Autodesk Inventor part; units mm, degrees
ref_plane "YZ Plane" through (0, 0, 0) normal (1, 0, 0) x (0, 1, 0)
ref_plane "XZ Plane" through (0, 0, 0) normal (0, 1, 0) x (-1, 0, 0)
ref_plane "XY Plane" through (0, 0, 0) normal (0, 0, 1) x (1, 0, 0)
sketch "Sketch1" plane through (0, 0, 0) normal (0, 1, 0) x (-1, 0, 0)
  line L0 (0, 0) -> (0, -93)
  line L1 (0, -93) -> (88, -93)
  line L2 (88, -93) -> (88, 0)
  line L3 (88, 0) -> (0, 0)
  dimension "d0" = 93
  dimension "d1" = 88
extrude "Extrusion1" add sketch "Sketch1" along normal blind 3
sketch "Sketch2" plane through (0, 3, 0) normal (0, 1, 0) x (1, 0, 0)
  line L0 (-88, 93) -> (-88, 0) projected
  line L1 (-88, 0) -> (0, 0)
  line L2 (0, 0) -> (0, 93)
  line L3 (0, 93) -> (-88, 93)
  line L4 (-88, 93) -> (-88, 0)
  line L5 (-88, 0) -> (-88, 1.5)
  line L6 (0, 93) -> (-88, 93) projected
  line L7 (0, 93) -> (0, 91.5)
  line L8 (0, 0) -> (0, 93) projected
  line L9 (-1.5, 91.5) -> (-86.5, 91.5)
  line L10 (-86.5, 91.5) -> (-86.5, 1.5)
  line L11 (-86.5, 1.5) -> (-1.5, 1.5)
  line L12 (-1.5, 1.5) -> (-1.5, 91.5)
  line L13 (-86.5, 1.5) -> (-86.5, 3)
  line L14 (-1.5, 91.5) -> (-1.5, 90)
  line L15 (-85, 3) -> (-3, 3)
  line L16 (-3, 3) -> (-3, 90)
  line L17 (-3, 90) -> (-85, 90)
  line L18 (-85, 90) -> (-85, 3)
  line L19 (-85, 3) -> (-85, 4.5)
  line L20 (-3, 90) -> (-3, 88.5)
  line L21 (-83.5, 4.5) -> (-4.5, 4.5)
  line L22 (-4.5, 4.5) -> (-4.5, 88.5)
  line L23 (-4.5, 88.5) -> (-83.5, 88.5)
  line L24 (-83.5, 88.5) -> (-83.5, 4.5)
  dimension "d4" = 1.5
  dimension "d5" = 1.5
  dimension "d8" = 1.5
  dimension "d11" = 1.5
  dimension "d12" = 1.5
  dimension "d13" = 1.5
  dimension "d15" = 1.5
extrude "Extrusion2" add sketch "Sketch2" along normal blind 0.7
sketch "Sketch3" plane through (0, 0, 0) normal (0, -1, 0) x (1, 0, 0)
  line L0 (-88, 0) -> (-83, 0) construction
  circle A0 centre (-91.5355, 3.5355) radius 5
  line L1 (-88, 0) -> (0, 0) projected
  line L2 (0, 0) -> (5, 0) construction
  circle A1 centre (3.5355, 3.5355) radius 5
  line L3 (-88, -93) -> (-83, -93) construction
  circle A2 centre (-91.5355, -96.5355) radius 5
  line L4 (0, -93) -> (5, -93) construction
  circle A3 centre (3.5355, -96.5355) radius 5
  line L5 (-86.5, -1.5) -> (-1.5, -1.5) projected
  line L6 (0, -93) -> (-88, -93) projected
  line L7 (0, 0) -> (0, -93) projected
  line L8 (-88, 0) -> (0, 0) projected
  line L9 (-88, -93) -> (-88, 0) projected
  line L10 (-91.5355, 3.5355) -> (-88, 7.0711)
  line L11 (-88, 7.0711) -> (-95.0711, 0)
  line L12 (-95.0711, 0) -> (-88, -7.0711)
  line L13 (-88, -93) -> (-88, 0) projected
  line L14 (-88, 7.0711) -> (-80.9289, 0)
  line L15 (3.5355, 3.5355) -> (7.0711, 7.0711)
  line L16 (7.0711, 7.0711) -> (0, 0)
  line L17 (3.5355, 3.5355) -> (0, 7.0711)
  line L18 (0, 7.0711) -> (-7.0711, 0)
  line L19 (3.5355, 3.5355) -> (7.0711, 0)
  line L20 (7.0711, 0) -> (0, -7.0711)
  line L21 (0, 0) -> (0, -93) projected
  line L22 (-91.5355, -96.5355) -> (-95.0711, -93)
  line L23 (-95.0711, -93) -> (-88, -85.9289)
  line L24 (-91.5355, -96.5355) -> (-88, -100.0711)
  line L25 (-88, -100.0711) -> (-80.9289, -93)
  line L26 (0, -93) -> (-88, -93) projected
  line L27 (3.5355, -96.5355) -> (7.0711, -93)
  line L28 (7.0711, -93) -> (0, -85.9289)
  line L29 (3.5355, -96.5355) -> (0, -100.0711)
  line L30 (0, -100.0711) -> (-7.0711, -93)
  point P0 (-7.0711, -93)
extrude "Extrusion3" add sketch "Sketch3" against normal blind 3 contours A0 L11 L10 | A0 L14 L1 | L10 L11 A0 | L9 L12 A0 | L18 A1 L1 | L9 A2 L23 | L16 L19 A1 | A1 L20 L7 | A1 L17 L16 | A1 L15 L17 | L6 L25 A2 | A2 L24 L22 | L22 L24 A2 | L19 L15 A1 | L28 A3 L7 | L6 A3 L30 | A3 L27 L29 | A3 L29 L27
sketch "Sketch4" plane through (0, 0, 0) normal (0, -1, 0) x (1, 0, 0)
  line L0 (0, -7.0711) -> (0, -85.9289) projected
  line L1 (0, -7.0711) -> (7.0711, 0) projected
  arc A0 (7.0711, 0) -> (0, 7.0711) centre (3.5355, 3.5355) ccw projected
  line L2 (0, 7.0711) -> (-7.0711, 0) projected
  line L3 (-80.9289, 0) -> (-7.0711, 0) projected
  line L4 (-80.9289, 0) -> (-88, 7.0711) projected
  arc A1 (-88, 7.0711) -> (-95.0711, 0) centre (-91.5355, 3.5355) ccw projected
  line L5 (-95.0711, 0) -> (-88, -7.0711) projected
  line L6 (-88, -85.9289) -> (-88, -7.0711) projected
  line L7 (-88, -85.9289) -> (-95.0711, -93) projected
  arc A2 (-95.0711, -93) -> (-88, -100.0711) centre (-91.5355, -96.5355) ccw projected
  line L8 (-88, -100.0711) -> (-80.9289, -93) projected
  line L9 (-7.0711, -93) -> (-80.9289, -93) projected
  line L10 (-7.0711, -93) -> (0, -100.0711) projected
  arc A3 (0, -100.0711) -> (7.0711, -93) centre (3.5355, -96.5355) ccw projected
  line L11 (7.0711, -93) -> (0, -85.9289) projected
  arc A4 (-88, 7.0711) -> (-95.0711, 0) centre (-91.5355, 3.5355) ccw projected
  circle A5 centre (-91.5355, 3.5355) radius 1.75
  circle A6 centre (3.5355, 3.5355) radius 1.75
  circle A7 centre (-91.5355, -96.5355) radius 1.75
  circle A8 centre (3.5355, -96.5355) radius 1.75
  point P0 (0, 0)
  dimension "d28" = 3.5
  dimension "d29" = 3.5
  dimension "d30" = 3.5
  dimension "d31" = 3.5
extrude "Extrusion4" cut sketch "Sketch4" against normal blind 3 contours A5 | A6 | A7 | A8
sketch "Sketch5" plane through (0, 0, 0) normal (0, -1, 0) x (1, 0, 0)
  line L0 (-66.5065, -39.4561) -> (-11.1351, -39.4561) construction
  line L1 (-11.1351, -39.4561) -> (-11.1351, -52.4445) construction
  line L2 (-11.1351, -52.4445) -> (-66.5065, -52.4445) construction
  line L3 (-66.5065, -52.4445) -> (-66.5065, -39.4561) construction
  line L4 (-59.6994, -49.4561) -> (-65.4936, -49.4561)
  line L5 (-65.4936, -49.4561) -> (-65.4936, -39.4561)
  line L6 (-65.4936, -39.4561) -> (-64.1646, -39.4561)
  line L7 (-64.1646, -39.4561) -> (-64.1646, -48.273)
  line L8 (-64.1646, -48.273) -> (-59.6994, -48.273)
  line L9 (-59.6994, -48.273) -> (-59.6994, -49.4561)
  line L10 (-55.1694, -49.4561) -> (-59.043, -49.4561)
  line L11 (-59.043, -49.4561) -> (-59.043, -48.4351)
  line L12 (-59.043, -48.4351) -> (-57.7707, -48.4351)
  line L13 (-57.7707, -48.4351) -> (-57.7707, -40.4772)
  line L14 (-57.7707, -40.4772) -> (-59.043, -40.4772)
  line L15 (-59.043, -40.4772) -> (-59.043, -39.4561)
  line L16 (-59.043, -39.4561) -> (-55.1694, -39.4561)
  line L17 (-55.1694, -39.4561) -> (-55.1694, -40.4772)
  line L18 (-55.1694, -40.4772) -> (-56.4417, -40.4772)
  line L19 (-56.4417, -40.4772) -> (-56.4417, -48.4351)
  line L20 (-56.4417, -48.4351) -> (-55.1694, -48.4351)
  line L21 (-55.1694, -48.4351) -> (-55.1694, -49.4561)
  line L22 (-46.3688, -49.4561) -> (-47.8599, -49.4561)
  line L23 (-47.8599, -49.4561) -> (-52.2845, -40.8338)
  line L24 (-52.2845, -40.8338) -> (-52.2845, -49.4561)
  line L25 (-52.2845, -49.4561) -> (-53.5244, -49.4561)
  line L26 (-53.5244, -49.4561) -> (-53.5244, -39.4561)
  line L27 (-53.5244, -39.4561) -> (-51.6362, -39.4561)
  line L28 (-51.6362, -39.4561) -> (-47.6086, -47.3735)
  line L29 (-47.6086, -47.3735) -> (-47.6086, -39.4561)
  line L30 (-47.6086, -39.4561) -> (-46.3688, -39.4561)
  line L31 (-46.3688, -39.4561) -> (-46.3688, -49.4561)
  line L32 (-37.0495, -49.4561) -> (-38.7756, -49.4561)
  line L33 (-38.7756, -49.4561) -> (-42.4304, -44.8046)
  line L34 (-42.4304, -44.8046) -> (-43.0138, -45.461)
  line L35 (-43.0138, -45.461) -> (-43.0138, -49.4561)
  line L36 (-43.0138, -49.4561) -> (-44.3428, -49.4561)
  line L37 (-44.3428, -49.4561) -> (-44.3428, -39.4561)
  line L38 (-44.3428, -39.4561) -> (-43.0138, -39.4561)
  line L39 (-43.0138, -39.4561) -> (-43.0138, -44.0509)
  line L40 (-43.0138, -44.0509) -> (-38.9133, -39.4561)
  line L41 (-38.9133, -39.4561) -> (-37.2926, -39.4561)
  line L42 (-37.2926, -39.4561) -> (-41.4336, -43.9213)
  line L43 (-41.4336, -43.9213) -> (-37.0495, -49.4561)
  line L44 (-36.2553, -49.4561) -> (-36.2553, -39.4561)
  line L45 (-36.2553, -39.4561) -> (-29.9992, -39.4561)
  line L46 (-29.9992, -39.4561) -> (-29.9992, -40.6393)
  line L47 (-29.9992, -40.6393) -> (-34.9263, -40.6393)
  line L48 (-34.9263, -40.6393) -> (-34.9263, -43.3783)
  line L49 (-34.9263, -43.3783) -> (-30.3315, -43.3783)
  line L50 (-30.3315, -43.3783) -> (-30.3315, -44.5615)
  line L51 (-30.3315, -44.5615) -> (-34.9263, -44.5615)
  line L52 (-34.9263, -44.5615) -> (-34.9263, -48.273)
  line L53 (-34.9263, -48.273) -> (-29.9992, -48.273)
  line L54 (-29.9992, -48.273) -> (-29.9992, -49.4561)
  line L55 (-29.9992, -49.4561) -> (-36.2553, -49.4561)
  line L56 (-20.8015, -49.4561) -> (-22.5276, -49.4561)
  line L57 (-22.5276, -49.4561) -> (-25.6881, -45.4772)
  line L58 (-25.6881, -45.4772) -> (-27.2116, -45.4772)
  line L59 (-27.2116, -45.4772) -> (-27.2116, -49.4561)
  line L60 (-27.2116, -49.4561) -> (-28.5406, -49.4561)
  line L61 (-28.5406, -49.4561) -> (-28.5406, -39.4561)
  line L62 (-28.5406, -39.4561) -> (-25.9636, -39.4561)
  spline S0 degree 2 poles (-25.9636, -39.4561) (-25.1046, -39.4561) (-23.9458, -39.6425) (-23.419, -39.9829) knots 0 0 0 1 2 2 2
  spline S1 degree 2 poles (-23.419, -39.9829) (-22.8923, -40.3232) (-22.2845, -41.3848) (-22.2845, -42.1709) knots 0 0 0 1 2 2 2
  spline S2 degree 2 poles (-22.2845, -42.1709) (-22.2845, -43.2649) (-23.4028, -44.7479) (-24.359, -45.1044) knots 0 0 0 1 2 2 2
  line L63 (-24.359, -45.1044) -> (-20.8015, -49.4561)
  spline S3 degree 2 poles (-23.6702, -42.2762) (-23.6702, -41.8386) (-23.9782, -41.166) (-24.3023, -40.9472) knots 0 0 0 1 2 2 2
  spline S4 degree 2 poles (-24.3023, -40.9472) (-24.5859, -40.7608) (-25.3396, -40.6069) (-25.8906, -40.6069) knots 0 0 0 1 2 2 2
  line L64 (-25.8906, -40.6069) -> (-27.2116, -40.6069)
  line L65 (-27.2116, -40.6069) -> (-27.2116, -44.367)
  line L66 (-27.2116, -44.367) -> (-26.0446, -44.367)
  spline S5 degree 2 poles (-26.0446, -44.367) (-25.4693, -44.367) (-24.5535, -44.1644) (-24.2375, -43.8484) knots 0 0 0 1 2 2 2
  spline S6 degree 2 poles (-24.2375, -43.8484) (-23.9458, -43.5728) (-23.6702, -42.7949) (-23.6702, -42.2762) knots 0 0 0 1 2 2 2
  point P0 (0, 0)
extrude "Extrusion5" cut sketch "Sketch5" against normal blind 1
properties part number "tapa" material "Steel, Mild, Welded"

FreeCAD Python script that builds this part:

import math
import FreeCAD as App
import Part
import Sketcher
from FreeCAD import Vector
Q = App.Units.Quantity


def add_polygon(sketch, points):
    """Adds a closed chain of lines whose ends are joined by coincident constraints."""
    first, n = sketch.GeometryCount, len(points)
    for a, b in zip(points, points[1:] + points[:1]):
        sketch.addGeometry(Part.LineSegment(App.Vector(*a, 0), App.Vector(*b, 0)), False)
    for i in range(n):
        sketch.addConstraint(Sketcher.Constraint("Coincident", first + i, 2, first + (i + 1) % n, 1))

doc = App.newDocument("Part")
body = doc.addObject("PartDesign::Body", "Body")

# Sketch on XZ plane
sketch1 = body.newObject("Sketcher::SketchObject", "Sketch")
sketch1.AttachmentSupport = (doc.getObject("XZ_Plane"), [""])
sketch1.MapMode = "FlatFace"
add_polygon(sketch1, [(-88, 0), (0, 0), (0, -93), (-88, -93)])  # lines 0-3
sketch1.addConstraint(Sketcher.Constraint("Horizontal", 0))
sketch1.addConstraint(Sketcher.Constraint("Vertical", 1))
sketch1.addConstraint(Sketcher.Constraint("Horizontal", 2))
sketch1.addConstraint(Sketcher.Constraint("Vertical", 3))
sketch1.addConstraint(Sketcher.Constraint("Coincident", 0, 2, -1, 1))
sketch1.addConstraint(Sketcher.Constraint("DistanceX", 0, 1, 0, 2, Q("88 mm")))
sketch1.addConstraint(Sketcher.Constraint("DistanceY", 1, 2, 1, 1, Q("93 mm")))
pad1 = body.newObject("PartDesign::Pad", "Pad")
pad1.Profile = sketch1
pad1.Length = 3
pad1.Reversed = True

# Sketch on XZ plane
sketch2 = body.newObject("Sketcher::SketchObject", "Sketch001")
sketch2.AttachmentSupport = (doc.getObject("XZ_Plane"), [""])
sketch2.MapMode = "FlatFace"
sketch2.AttachmentOffset = App.Placement(Vector(0, 0, -3), App.Rotation())
add_polygon(sketch2, [(0, -93), (-88, -93), (-88, 0), (0, 0)])  # lines 0-3
add_polygon(sketch2, [(-86, -92), (-2, -92), (-2, -2), (-86, -2)])  # lines 4-7
add_polygon(sketch2, [(-85, -90), (-85, -3), (-3, -3), (-3, -90)])  # lines 8-11
add_polygon(sketch2, [(-4, -4), (-84, -4), (-84, -88), (-4, -88)])  # lines 12-15
sketch2.addConstraint(Sketcher.Constraint("Horizontal", 0))
sketch2.addConstraint(Sketcher.Constraint("Vertical", 1))
sketch2.addConstraint(Sketcher.Constraint("Horizontal", 2))
sketch2.addConstraint(Sketcher.Constraint("Vertical", 3))
sketch2.addConstraint(Sketcher.Constraint("Horizontal", 4))
sketch2.addConstraint(Sketcher.Constraint("Vertical", 5))
sketch2.addConstraint(Sketcher.Constraint("Horizontal", 6))
sketch2.addConstraint(Sketcher.Constraint("Vertical", 7))
sketch2.addConstraint(Sketcher.Constraint("Vertical", 8))
sketch2.addConstraint(Sketcher.Constraint("Horizontal", 9))
sketch2.addConstraint(Sketcher.Constraint("Vertical", 10))
sketch2.addConstraint(Sketcher.Constraint("Horizontal", 11))
sketch2.addConstraint(Sketcher.Constraint("Horizontal", 12))
sketch2.addConstraint(Sketcher.Constraint("Vertical", 13))
sketch2.addConstraint(Sketcher.Constraint("Horizontal", 14))
sketch2.addConstraint(Sketcher.Constraint("Vertical", 15))
sketch2.addConstraint(Sketcher.Constraint("Coincident", 2, 2, -1, 1))
sketch2.addConstraint(Sketcher.Constraint("DistanceX", 4, 2, -1, 1, Q("1.5 mm")))
sketch2.addConstraint(Sketcher.Constraint("DistanceY", 5, 2, -1, 1, Q("1.5 mm")))
sketch2.addConstraint(Sketcher.Constraint("DistanceY", 3, 2, 4, 2, Q("1.5 mm")))
sketch2.addConstraint(Sketcher.Constraint("DistanceX", 1, 2, 6, 2, Q("1.5 mm")))
sketch2.addConstraint(Sketcher.Constraint("DistanceX", 6, 2, 8, 2, Q("1.5 mm")))
sketch2.addConstraint(Sketcher.Constraint("DistanceY", 8, 2, 6, 2, Q("1.5 mm")))
sketch2.addConstraint(Sketcher.Constraint("DistanceX", 9, 2, 5, 2, Q("1.5 mm")))
sketch2.addConstraint(Sketcher.Constraint("DistanceY", 4, 2, 10, 2, Q("1.5 mm")))
sketch2.addConstraint(Sketcher.Constraint("DistanceX", 8, 2, 12, 2, Q("1.5 mm")))
sketch2.addConstraint(Sketcher.Constraint("DistanceY", 12, 2, 8, 2, Q("1.5 mm")))
sketch2.addConstraint(Sketcher.Constraint("DistanceY", 11, 2, 13, 2, Q("1.5 mm")))
sketch2.addConstraint(Sketcher.Constraint("DistanceX", 14, 2, 10, 2, Q("1.5 mm")))
sketch2.addConstraint(Sketcher.Constraint("DistanceX", 0, 2, 0, 1, Q("88 mm")))
sketch2.addConstraint(Sketcher.Constraint("DistanceY", 1, 1, 1, 2, Q("93 mm")))
pad2 = body.newObject("PartDesign::Pad", "Pad001")
pad2.Profile = sketch2
pad2.Length = 0.7
pad2.Reversed = True

# Sketch on XZ plane
sketch3 = body.newObject("Sketcher::SketchObject", "Sketch002")
sketch3.AttachmentSupport = (doc.getObject("XZ_Plane"), [""])
sketch3.MapMode = "FlatFace"
sketch3.addGeometry(Part.LineSegment(Vector(-88, 0, 0), Vector(-81, 0, 0)), False)
sketch3.addGeometry(Part.LineSegment(Vector(-81, 0, 0), Vector(-88, 7, 0)), False)
sketch3.addGeometry(Part.ArcOfCircle(Part.Circle(Vector(-92, 4, 0), Vector(0, 0, 1), 5), math.radians(45), math.radians(225)), False)
sketch3.addGeometry(Part.LineSegment(Vector(-95, 0, 0), Vector(-88, -7, 0)), False)
sketch3.addGeometry(Part.LineSegment(Vector(-88, -7, 0), Vector(-88, 0, 0)), False)
sketch3.addGeometry(Part.LineSegment(Vector(0, 7, 0), Vector(-7, 0, 0)), False)
sketch3.addGeometry(Part.LineSegment(Vector(-7, 0, 0), Vector(0, 0, 0)), False)
sketch3.addGeometry(Part.LineSegment(Vector(0, 0, 0), Vector(0, -7, 0)), False)
sketch3.addGeometry(Part.LineSegment(Vector(0, -7, 0), Vector(7, 0, 0)), False)
sketch3.addGeometry(Part.ArcOfCircle(Part.Circle(Vector(4, 4, 0), Vector(0, 0, 1), 5), math.radians(-45), math.radians(135)), False)
sketch3.addGeometry(Part.LineSegment(Vector(-88, -93, 0), Vector(-88, -86, 0)), False)
sketch3.addGeometry(Part.LineSegment(Vector(-88, -86, 0), Vector(-95, -93, 0)), False)
sketch3.addGeometry(Part.ArcOfCircle(Part.Circle(Vector(-92, -97, 0), Vector(0, 0, 1), 5), math.radians(135), math.radians(315)), False)
sketch3.addGeometry(Part.LineSegment(Vector(-88, -100, 0), Vector(-81, -93, 0)), False)
sketch3.addGeometry(Part.LineSegment(Vector(-81, -93, 0), Vector(-88, -93, 0)), False)
sketch3.addGeometry(Part.LineSegment(Vector(7, -93, 0), Vector(0, -86, 0)), False)
sketch3.addGeometry(Part.LineSegment(Vector(0, -86, 0), Vector(0, -93, 0)), False)
sketch3.addGeometry(Part.LineSegment(Vector(0, -93, 0), Vector(-7, -93, 0)), False)
sketch3.addGeometry(Part.LineSegment(Vector(-7, -93, 0), Vector(0, -100, 0)), False)
sketch3.addGeometry(Part.ArcOfCircle(Part.Circle(Vector(4, -97, 0), Vector(0, 0, 1), 5), math.radians(-135), math.radians(45)), False)
sketch3.addConstraint(Sketcher.Constraint("Coincident", 0, 2, 1, 1))
sketch3.addConstraint(Sketcher.Constraint("Tangent", 1, 2, 2, 1))
sketch3.addConstraint(Sketcher.Constraint("Tangent", 2, 2, 3, 1))
sketch3.addConstraint(Sketcher.Constraint("Coincident", 3, 2, 4, 1))
sketch3.addConstraint(Sketcher.Constraint("Coincident", 4, 2, 0, 1))
sketch3.addConstraint(Sketcher.Constraint("Coincident", 5, 2, 6, 1))
sketch3.addConstraint(Sketcher.Constraint("Coincident", 6, 2, 7, 1))
sketch3.addConstraint(Sketcher.Constraint("Coincident", 7, 2, 8, 1))
sketch3.addConstraint(Sketcher.Constraint("Tangent", 8, 2, 9, 1))
sketch3.addConstraint(Sketcher.Constraint("Tangent", 9, 2, 5, 1))
sketch3.addConstraint(Sketcher.Constraint("Coincident", 10, 2, 11, 1))
sketch3.addConstraint(Sketcher.Constraint("Tangent", 11, 2, 12, 1))
sketch3.addConstraint(Sketcher.Constraint("Tangent", 12, 2, 13, 1))
sketch3.addConstraint(Sketcher.Constraint("Coincident", 13, 2, 14, 1))
sketch3.addConstraint(Sketcher.Constraint("Coincident", 14, 2, 10, 1))
sketch3.addConstraint(Sketcher.Constraint("Coincident", 15, 2, 16, 1))
sketch3.addConstraint(Sketcher.Constraint("Coincident", 16, 2, 17, 1))
sketch3.addConstraint(Sketcher.Constraint("Coincident", 17, 2, 18, 1))
sketch3.addConstraint(Sketcher.Constraint("Tangent", 18, 2, 19, 1))
sketch3.addConstraint(Sketcher.Constraint("Tangent", 19, 2, 15, 1))
sketch3.addConstraint(Sketcher.Constraint("Horizontal", 0))
sketch3.addConstraint(Sketcher.Constraint("Vertical", 4))
sketch3.addConstraint(Sketcher.Constraint("Horizontal", 6))
sketch3.addConstraint(Sketcher.Constraint("Vertical", 7))
sketch3.addConstraint(Sketcher.Constraint("Vertical", 10))
sketch3.addConstraint(Sketcher.Constraint("Horizontal", 14))
sketch3.addConstraint(Sketcher.Constraint("Vertical", 16))
sketch3.addConstraint(Sketcher.Constraint("Horizontal", 17))
sketch3.addConstraint(Sketcher.Constraint("Coincident", 6, 2, -1, 1))
sketch3.addConstraint(Sketcher.Constraint("Equal", 2, 9))
sketch3.addConstraint(Sketcher.Constraint("Equal", 9, 12))
sketch3.addConstraint(Sketcher.Constraint("Equal", 12, 19))
sketch3.addConstraint(Sketcher.Constraint("Symmetric", 5, 2, 8, 2, -1, 1))
sketch3.addConstraint(Sketcher.Constraint("Symmetric", 7, 2, 9, 2, -1, 1))
sketch3.addConstraint(Sketcher.Constraint("Symmetric", 17, 2, 19, 2, -2))
sketch3.addConstraint(Sketcher.Constraint("Symmetric", 1, 2, 3, 2, -1))
sketch3.addConstraint(Sketcher.Constraint("PointOnObject", 0, 2, -1))
sketch3.addConstraint(Sketcher.Constraint("PointOnObject", 2, 2, -1))
sketch3.addConstraint(Sketcher.Constraint("PointOnObject", 15, 2, -2))
sketch3.addConstraint(Sketcher.Constraint("PointOnObject", 18, 2, -2))
sketch3.addConstraint(Sketcher.Constraint("Parallel", 1, 3))
sketch3.addConstraint(Sketcher.Constraint("Parallel", 8, 11))
sketch3.addConstraint(Sketcher.Constraint("Parallel", 11, 13))
sketch3.addConstraint(Sketcher.Constraint("Perpendicular", 13, 15))
sketch3.addConstraint(Sketcher.Constraint("Horizontal", 12, 3, 19, 3))
sketch3.addConstraint(Sketcher.Constraint("Horizontal", 11, 2, 13, 2))
sketch3.addConstraint(Sketcher.Constraint("Horizontal", 10, 2, 15, 2))
sketch3.addConstraint(Sketcher.Constraint("Vertical", 2, 3, 12, 3))
sketch3.addConstraint(Sketcher.Constraint("Radius", 2, Q("5 mm")))
sketch3.addConstraint(Sketcher.Constraint("DistanceX", 1, 2, -1, 1, Q("88 mm")))
sketch3.addConstraint(Sketcher.Constraint("DistanceY", 11, 2, -1, 1, Q("93 mm")))
pad3 = body.newObject("PartDesign::Pad", "Pad002")
pad3.Profile = sketch3
pad3.Length = 3
pad3.Reversed = True

# Sketch on XZ plane
sketch4 = body.newObject("Sketcher::SketchObject", "Sketch003")
sketch4.AttachmentSupport = (doc.getObject("XZ_Plane"), [""])
sketch4.MapMode = "FlatFace"
sketch4.addGeometry(Part.Circle(Vector(-91.5, 3.5, 0), Vector(0, 0, 1), 1.8), False)
sketch4.addGeometry(Part.Circle(Vector(3.5, 3.5, 0), Vector(0, 0, 1), 1.8), False)
sketch4.addGeometry(Part.Circle(Vector(-91.5, -96.5, 0), Vector(0, 0, 1), 1.8), False)
sketch4.addGeometry(Part.Circle(Vector(3.5, -96.5, 0), Vector(0, 0, 1), 1.8), False)
sketch4.addConstraint(Sketcher.Constraint("Equal", 0, 1))
sketch4.addConstraint(Sketcher.Constraint("Equal", 1, 2))
sketch4.addConstraint(Sketcher.Constraint("Equal", 2, 3))
sketch4.addConstraint(Sketcher.Constraint("Horizontal", 0, 3, 1, 3))
sketch4.addConstraint(Sketcher.Constraint("Horizontal", 2, 3, 3, 3))
sketch4.addConstraint(Sketcher.Constraint("Vertical", 0, 3, 2, 3))
sketch4.addConstraint(Sketcher.Constraint("Vertical", 1, 3, 3, 3))
sketch4.addConstraint(Sketcher.Constraint("Diameter", 0, Q("3.5 mm")))
sketch4.addConstraint(Sketcher.Constraint("DistanceX", 0, 3, 1, 3, Q("95.071 mm")))
sketch4.addConstraint(Sketcher.Constraint("DistanceY", 2, 3, 0, 3, Q("100.071 mm")))
sketch4.addConstraint(Sketcher.Constraint("DistanceX", 0, 3, -1, 1, Q("91.5355 mm")))
sketch4.addConstraint(Sketcher.Constraint("DistanceY", -1, 1, 0, 3, Q("3.5355 mm")))
pocket1 = body.newObject("PartDesign::Pocket", "Pocket")
pocket1.Profile = sketch4
pocket1.Length = 3

# Sketch on XZ plane
sketch5 = body.newObject("Sketcher::SketchObject", "Sketch004")
sketch5.AttachmentSupport = (doc.getObject("XZ_Plane"), [""])
sketch5.MapMode = "FlatFace"
add_polygon(sketch5, [(-65.4936, -49.4561), (-59.6994, -49.4561), (-59.6994, -48.273), (-64.1646, -48.273), (-64.1646, -39.4561), (-65.4936, -39.4561)])  # lines 0-5
add_polygon(sketch5, [(-59.043, -49.4561), (-55.1694, -49.4561), (-55.1694, -48.4351), (-56.4417, -48.4351), (-56.4417, -40.4772), (-55.1694, -40.4772), (-55.1694, -39.4561), (-59.043, -39.4561), (-59.043, -40.4772), (-57.7707, -40.4772), (-57.7707, -48.4351), (-59.043, -48.4351)])  # lines 6-17
add_polygon(sketch5, [(-47.8599, -49.4561), (-46.3688, -49.4561), (-46.3688, -39.4561), (-47.6086, -39.4561), (-47.6086, -47.3735), (-51.6362, -39.4561), (-53.5244, -39.4561), (-53.5244, -49.4561), (-52.2845, -49.4561), (-52.2845, -40.8338)])  # lines 18-27
add_polygon(sketch5, [(-38.7756, -49.4561), (-37.0495, -49.4561), (-41.4336, -43.9213), (-37.2926, -39.4561), (-38.9133, -39.4561), (-43.0138, -44.0509), (-43.0138, -39.4561), (-44.3428, -39.4561), (-44.3428, -49.4561), (-43.0138, -49.4561), (-43.0138, -45.461), (-42.4304, -44.8046)])  # lines 28-39
add_polygon(sketch5, [(-36.2553, -39.4561), (-36.2553, -49.4561), (-29.9992, -49.4561), (-29.9992, -48.273), (-34.9263, -48.273), (-34.9263, -44.5615), (-30.3315, -44.5615), (-30.3315, -43.3783), (-34.9263, -43.3783), (-34.9263, -40.6393), (-29.9992, -40.6393), (-29.9992, -39.4561)])  # lines 40-51
sketch5.addGeometry(Part.LineSegment(Vector(-22.5276, -49.4561, 0), Vector(-20.8015, -49.4561, 0)), False)  # 52
sketch5.addGeometry(Part.LineSegment(Vector(-20.8015, -49.4561, 0), Vector(-24.359, -45.1044, 0)), False)  # 53
sketch5.addGeometry(Part.BSplineCurve([Vector(-22.2845, -42.1709, 0), Vector(-22.2845, -43.2649, 0), Vector(-23.4028, -44.7479, 0), Vector(-24.359, -45.1044, 0)], [3, 1, 3], [0, 1, 2], False, 2, [1, 1, 1, 1], False), False)  # 54
sketch5.addGeometry(Part.BSplineCurve([Vector(-23.419, -39.9829, 0), Vector(-22.8923, -40.3232, 0), Vector(-22.2845, -41.3848, 0), Vector(-22.2845, -42.1709, 0)], [3, 1, 3], [0, 1, 2], False, 2, [1, 1, 1, 1], False), False)  # 55
sketch5.addGeometry(Part.BSplineCurve([Vector(-25.9636, -39.4561, 0), Vector(-25.1046, -39.4561, 0), Vector(-23.9458, -39.6425, 0), Vector(-23.419, -39.9829, 0)], [3, 1, 3], [0, 1, 2], False, 2, [1, 1, 1, 1], False), False)  # 56
sketch5.addGeometry(Part.LineSegment(Vector(-25.9636, -39.4561, 0), Vector(-28.5406, -39.4561, 0)), False)  # 57
sketch5.addGeometry(Part.LineSegment(Vector(-28.5406, -39.4561, 0), Vector(-28.5406, -49.4561, 0)), False)  # 58
sketch5.addGeometry(Part.LineSegment(Vector(-28.5406, -49.4561, 0), Vector(-27.2116, -49.4561, 0)), False)  # 59
sketch5.addGeometry(Part.LineSegment(Vector(-27.2116, -49.4561, 0), Vector(-27.2116, -45.4772, 0)), False)  # 60
sketch5.addGeometry(Part.LineSegment(Vector(-27.2116, -45.4772, 0), Vector(-25.6881, -45.4772, 0)), False)  # 61
sketch5.addGeometry(Part.LineSegment(Vector(-25.6881, -45.4772, 0), Vector(-22.5276, -49.4561, 0)), False)  # 62
sketch5.addGeometry(Part.BSplineCurve([Vector(-23.6702, -42.2762, 0), Vector(-23.6702, -41.8386, 0), Vector(-23.9782, -41.166, 0), Vector(-24.3023, -40.9472, 0)], [3, 1, 3], [0, 1, 2], False, 2, [1, 1, 1, 1], False), False)  # 63
sketch5.addGeometry(Part.BSplineCurve([Vector(-24.2375, -43.8484, 0), Vector(-23.9458, -43.5728, 0), Vector(-23.6702, -42.7949, 0), Vector(-23.6702, -42.2762, 0)], [3, 1, 3], [0, 1, 2], False, 2, [1, 1, 1, 1], False), False)  # 64
sketch5.addGeometry(Part.BSplineCurve([Vector(-26.0446, -44.367, 0), Vector(-25.4693, -44.367, 0), Vector(-24.5535, -44.1644, 0), Vector(-24.2375, -43.8484, 0)], [3, 1, 3], [0, 1, 2], False, 2, [1, 1, 1, 1], False), False)  # 65
sketch5.addGeometry(Part.LineSegment(Vector(-26.0446, -44.367, 0), Vector(-27.2116, -44.367, 0)), False)  # 66
sketch5.addGeometry(Part.LineSegment(Vector(-27.2116, -44.367, 0), Vector(-27.2116, -40.6069, 0)), False)  # 67
sketch5.addGeometry(Part.LineSegment(Vector(-27.2116, -40.6069, 0), Vector(-25.8906, -40.6069, 0)), False)  # 68
sketch5.addGeometry(Part.BSplineCurve([Vector(-24.3023, -40.9472, 0), Vector(-24.5859, -40.7608, 0), Vector(-25.3396, -40.6069, 0), Vector(-25.8906, -40.6069, 0)], [3, 1, 3], [0, 1, 2], False, 2, [1, 1, 1, 1], False), False)  # 69
sketch5.addConstraint(Sketcher.Constraint("Block", 54))
sketch5.addConstraint(Sketcher.Constraint("Block", 55))
sketch5.addConstraint(Sketcher.Constraint("Block", 56))
sketch5.addConstraint(Sketcher.Constraint("Block", 63))
sketch5.addConstraint(Sketcher.Constraint("Block", 64))
sketch5.addConstraint(Sketcher.Constraint("Block", 65))
sketch5.addConstraint(Sketcher.Constraint("Block", 69))
sketch5.addConstraint(Sketcher.Constraint("Coincident", 52, 2, 53, 1))
sketch5.addConstraint(Sketcher.Constraint("Coincident", 53, 2, 54, 2))
sketch5.addConstraint(Sketcher.Constraint("Coincident", 56, 1, 57, 1))
sketch5.addConstraint(Sketcher.Constraint("Coincident", 57, 2, 58, 1))
sketch5.addConstraint(Sketcher.Constraint("Coincident", 58, 2, 59, 1))
sketch5.addConstraint(Sketcher.Constraint("Coincident", 59, 2, 60, 1))
sketch5.addConstraint(Sketcher.Constraint("Coincident", 60, 2, 61, 1))
sketch5.addConstraint(Sketcher.Constraint("Coincident", 61, 2, 62, 1))
sketch5.addConstraint(Sketcher.Constraint("Coincident", 62, 2, 52, 1))
sketch5.addConstraint(Sketcher.Constraint("Coincident", 65, 1, 66, 1))
sketch5.addConstraint(Sketcher.Constraint("Coincident", 66, 2, 67, 1))
sketch5.addConstraint(Sketcher.Constraint("Coincident", 67, 2, 68, 1))
sketch5.addConstraint(Sketcher.Constraint("Coincident", 68, 2, 69, 2))
sketch5.addConstraint(Sketcher.Constraint("Horizontal", 0))
sketch5.addConstraint(Sketcher.Constraint("Vertical", 1))
sketch5.addConstraint(Sketcher.Constraint("Horizontal", 2))
sketch5.addConstraint(Sketcher.Constraint("Vertical", 3))
sketch5.addConstraint(Sketcher.Constraint("Horizontal", 4))
sketch5.addConstraint(Sketcher.Constraint("Vertical", 5))
sketch5.addConstraint(Sketcher.Constraint("Horizontal", 6))
sketch5.addConstraint(Sketcher.Constraint("Vertical", 7))
sketch5.addConstraint(Sketcher.Constraint("Horizontal", 8))
sketch5.addConstraint(Sketcher.Constraint("Vertical", 9))
sketch5.addConstraint(Sketcher.Constraint("Horizontal", 10))
sketch5.addConstraint(Sketcher.Constraint("Vertical", 11))
sketch5.addConstraint(Sketcher.Constraint("Horizontal", 12))
sketch5.addConstraint(Sketcher.Constraint("Vertical", 13))
sketch5.addConstraint(Sketcher.Constraint("Horizontal", 14))
sketch5.addConstraint(Sketcher.Constraint("Vertical", 15))
sketch5.addConstraint(Sketcher.Constraint("Horizontal", 16))
sketch5.addConstraint(Sketcher.Constraint("Vertical", 17))
sketch5.addConstraint(Sketcher.Constraint("Horizontal", 18))
sketch5.addConstraint(Sketcher.Constraint("Vertical", 19))
sketch5.addConstraint(Sketcher.Constraint("Horizontal", 20))
sketch5.addConstraint(Sketcher.Constraint("Vertical", 21))
sketch5.addConstraint(Sketcher.Constraint("Horizontal", 23))
sketch5.addConstraint(Sketcher.Constraint("Vertical", 24))
sketch5.addConstraint(Sketcher.Constraint("Horizontal", 25))
sketch5.addConstraint(Sketcher.Constraint("Vertical", 26))
sketch5.addConstraint(Sketcher.Constraint("Horizontal", 28))
sketch5.addConstraint(Sketcher.Constraint("Horizontal", 31))
sketch5.addConstraint(Sketcher.Constraint("Vertical", 33))
sketch5.addConstraint(Sketcher.Constraint("Horizontal", 34))
sketch5.addConstraint(Sketcher.Constraint("Vertical", 35))
sketch5.addConstraint(Sketcher.Constraint("Horizontal", 36))
sketch5.addConstraint(Sketcher.Constraint("Vertical", 37))
sketch5.addConstraint(Sketcher.Constraint("Vertical", 40))
sketch5.addConstraint(Sketcher.Constraint("Horizontal", 41))
sketch5.addConstraint(Sketcher.Constraint("Vertical", 42))
sketch5.addConstraint(Sketcher.Constraint("Horizontal", 43))
sketch5.addConstraint(Sketcher.Constraint("Vertical", 44))
sketch5.addConstraint(Sketcher.Constraint("Horizontal", 45))
sketch5.addConstraint(Sketcher.Constraint("Vertical", 46))
sketch5.addConstraint(Sketcher.Constraint("Horizontal", 47))
sketch5.addConstraint(Sketcher.Constraint("Vertical", 48))
sketch5.addConstraint(Sketcher.Constraint("Horizontal", 49))
sketch5.addConstraint(Sketcher.Constraint("Vertical", 50))
sketch5.addConstraint(Sketcher.Constraint("Horizontal", 51))
sketch5.addConstraint(Sketcher.Constraint("Horizontal", 52))
sketch5.addConstraint(Sketcher.Constraint("Horizontal", 57))
sketch5.addConstraint(Sketcher.Constraint("Vertical", 58))
sketch5.addConstraint(Sketcher.Constraint("Horizontal", 59))
sketch5.addConstraint(Sketcher.Constraint("Vertical", 60))
sketch5.addConstraint(Sketcher.Constraint("Horizontal", 61))
sketch5.addConstraint(Sketcher.Constraint("Horizontal", 66))
sketch5.addConstraint(Sketcher.Constraint("Vertical", 67))
sketch5.addConstraint(Sketcher.Constraint("Horizontal", 68))
sketch5.addConstraint(Sketcher.Constraint("Horizontal", 5, 2, 6, 2))
sketch5.addConstraint(Sketcher.Constraint("Horizontal", 4, 2, 11, 2))
sketch5.addConstraint(Sketcher.Constraint("Horizontal", 10, 2, 13, 2))
sketch5.addConstraint(Sketcher.Constraint("Horizontal", 8, 2, 15, 2))
sketch5.addConstraint(Sketcher.Constraint("Horizontal", 17, 2, 18, 2))
sketch5.addConstraint(Sketcher.Constraint("Horizontal", 12, 2, 19, 2))
sketch5.addConstraint(Sketcher.Constraint("Horizontal", 20, 2, 22, 2))
sketch5.addConstraint(Sketcher.Constraint("Horizontal", 18, 2, 24, 2))
sketch5.addConstraint(Sketcher.Constraint("Horizontal", 27, 2, 28, 2))
sketch5.addConstraint(Sketcher.Constraint("Horizontal", 23, 2, 30, 2))
sketch5.addConstraint(Sketcher.Constraint("Horizontal", 31, 2, 33, 2))
sketch5.addConstraint(Sketcher.Constraint("Horizontal", 28, 2, 35, 2))
sketch5.addConstraint(Sketcher.Constraint("Horizontal", 39, 2, 40, 2))
sketch5.addConstraint(Sketcher.Constraint("Horizontal", 2, 2, 42, 2))
sketch5.addConstraint(Sketcher.Constraint("Horizontal", 34, 2, 50, 2))
sketch5.addConstraint(Sketcher.Constraint("Horizontal", 41, 2, 52, 2))
sketch5.addConstraint(Sketcher.Constraint("Horizontal", 51, 2, 57, 2))
sketch5.addConstraint(Sketcher.Constraint("Horizontal", 52, 2, 58, 2))
sketch5.addConstraint(Sketcher.Constraint("Vertical", 7, 2, 10, 2))
sketch5.addConstraint(Sketcher.Constraint("Vertical", 13, 2, 16, 2))
sketch5.addConstraint(Sketcher.Constraint("Vertical", 33, 2, 36, 2))
sketch5.addConstraint(Sketcher.Constraint("Vertical", 44, 2, 47, 2))
sketch5.addConstraint(Sketcher.Constraint("Vertical", 42, 2, 49, 2))
sketch5.addConstraint(Sketcher.Constraint("Vertical", 60, 2, 66, 2))
sketch5.addConstraint(Sketcher.Constraint("Equal", 10, 14))
sketch5.addConstraint(Sketcher.Constraint("Equal", 20, 25))
sketch5.addConstraint(Sketcher.Constraint("Equal", 4, 34))
sketch5.addConstraint(Sketcher.Constraint("Equal", 28, 52))
sketch5.addConstraint(Sketcher.Constraint("Equal", 36, 59))
sketch5.addConstraint(Sketcher.Constraint("Equal", 7, 11))
sketch5.addConstraint(Sketcher.Constraint("Equal", 47, 33))
sketch5.addConstraint(Sketcher.Constraint("Equal", 42, 46))
sketch5.addConstraint(Sketcher.Constraint("Equal", 46, 50))
sketch5.addConstraint(Sketcher.Constraint("DistanceY", 5, 2, 5, 1, Q("10 mm")))
sketch5.addConstraint(Sketcher.Constraint("DistanceX", 25, 1, 25, 2, Q("1.24 mm")))
sketch5.addConstraint(Sketcher.Constraint("Angle", 38, Q("48.3697 deg")))
sketch5.addConstraint(Sketcher.Constraint("Angle", 62, Q("-51.5394 deg")))
sketch5.addConstraint(Sketcher.Constraint("DistanceX", 4, 2, 4, 1, Q("1.329 mm")))
sketch5.addConstraint(Sketcher.Constraint("DistanceX", 18, 1, 18, 2, Q("1.491 mm")))
sketch5.addConstraint(Sketcher.Constraint("DistanceX", 28, 1, 28, 2, Q("1.726 mm")))
sketch5.addConstraint(Sketcher.Constraint("DistanceX", 41, 1, 41, 2, Q("6.256 mm")))
sketch5.addConstraint(Sketcher.Constraint("DistanceX", 43, 2, 43, 1, Q("4.927 mm")))
sketch5.addConstraint(Sketcher.Constraint("DistanceX", 57, 2, 57, 1, Q("2.577 mm")))
sketch5.addConstraint(Sketcher.Constraint("DistanceY", 1, 1, 1, 2, Q("1.183 mm")))
sketch5.addConstraint(Sketcher.Constraint("DistanceY", 7, 1, 7, 2, Q("1.021 mm")))
sketch5.addConstraint(Sketcher.Constraint("DistanceY", 37, 1, 37, 2, Q("3.995 mm")))
sketch5.addConstraint(Sketcher.Constraint("DistanceY", 48, 1, 48, 2, Q("2.739 mm")))
sketch5.addConstraint(Sketcher.Constraint("DistanceY", 60, 1, 60, 2, Q("3.979 mm")))
sketch5.addConstraint(Sketcher.Constraint("DistanceX", 27, 2, -1, 1, Q("47.86 mm")))
sketch5.addConstraint(Sketcher.Constraint("Distance", 22, Q("8.883 mm")))
sketch5.addConstraint(Sketcher.Constraint("DistanceX", 0, 1, 0, 2, Q("5.7942 mm")))
sketch5.addConstraint(Sketcher.Constraint("DistanceX", 6, 1, 6, 2, Q("3.8736 mm")))
sketch5.addConstraint(Sketcher.Constraint("DistanceX", 8, 2, 8, 1, Q("1.2723 mm")))
sketch5.addConstraint(Sketcher.Constraint("DistanceX", 23, 2, 23, 1, Q("1.8882 mm")))
sketch5.addConstraint(Sketcher.Constraint("DistanceX", 31, 2, 31, 1, Q("1.6207 mm")))
sketch5.addConstraint(Sketcher.Constraint("DistanceX", 45, 1, 45, 2, Q("4.5948 mm")))
sketch5.addConstraint(Sketcher.Constraint("DistanceX", 61, 1, 61, 2, Q("1.5235 mm")))
sketch5.addConstraint(Sketcher.Constraint("DistanceY", 21, 2, 21, 1, Q("7.9174 mm")))
sketch5.addConstraint(Sketcher.Constraint("DistanceY", 26, 1, 26, 2, Q("8.6223 mm")))
sketch5.addConstraint(Sketcher.Constraint("DistanceX", 12, 2, -1, 1, Q("59.043 mm")))
sketch5.addConstraint(Sketcher.Constraint("Distance", 29, Q("7.0608 mm")))
sketch5.addConstraint(Sketcher.Constraint("Distance", 30, Q("6.0898 mm")))
sketch5.addConstraint(Sketcher.Constraint("Distance", 32, Q("6.1584 mm")))
sketch5.addConstraint(Sketcher.Constraint("Distance", 38, Q("0.8782 mm")))
sketch5.addConstraint(Sketcher.Constraint("Distance", 39, Q("5.9156 mm")))
sketch5.addConstraint(Sketcher.Constraint("DistanceX", 0, 2, -1, 1, Q("59.6994 mm")))
sketch5.addConstraint(Sketcher.Constraint("DistanceX", 28, 2, -1, 1, Q("37.0495 mm")))
sketch5.addConstraint(Sketcher.Constraint("DistanceX", 40, 2, -1, 1, Q("36.2553 mm")))
pocket2 = body.newObject("PartDesign::Pocket", "Pocket001")
pocket2.Profile = sketch5
pocket2.Length = 1

doc.recompute()
